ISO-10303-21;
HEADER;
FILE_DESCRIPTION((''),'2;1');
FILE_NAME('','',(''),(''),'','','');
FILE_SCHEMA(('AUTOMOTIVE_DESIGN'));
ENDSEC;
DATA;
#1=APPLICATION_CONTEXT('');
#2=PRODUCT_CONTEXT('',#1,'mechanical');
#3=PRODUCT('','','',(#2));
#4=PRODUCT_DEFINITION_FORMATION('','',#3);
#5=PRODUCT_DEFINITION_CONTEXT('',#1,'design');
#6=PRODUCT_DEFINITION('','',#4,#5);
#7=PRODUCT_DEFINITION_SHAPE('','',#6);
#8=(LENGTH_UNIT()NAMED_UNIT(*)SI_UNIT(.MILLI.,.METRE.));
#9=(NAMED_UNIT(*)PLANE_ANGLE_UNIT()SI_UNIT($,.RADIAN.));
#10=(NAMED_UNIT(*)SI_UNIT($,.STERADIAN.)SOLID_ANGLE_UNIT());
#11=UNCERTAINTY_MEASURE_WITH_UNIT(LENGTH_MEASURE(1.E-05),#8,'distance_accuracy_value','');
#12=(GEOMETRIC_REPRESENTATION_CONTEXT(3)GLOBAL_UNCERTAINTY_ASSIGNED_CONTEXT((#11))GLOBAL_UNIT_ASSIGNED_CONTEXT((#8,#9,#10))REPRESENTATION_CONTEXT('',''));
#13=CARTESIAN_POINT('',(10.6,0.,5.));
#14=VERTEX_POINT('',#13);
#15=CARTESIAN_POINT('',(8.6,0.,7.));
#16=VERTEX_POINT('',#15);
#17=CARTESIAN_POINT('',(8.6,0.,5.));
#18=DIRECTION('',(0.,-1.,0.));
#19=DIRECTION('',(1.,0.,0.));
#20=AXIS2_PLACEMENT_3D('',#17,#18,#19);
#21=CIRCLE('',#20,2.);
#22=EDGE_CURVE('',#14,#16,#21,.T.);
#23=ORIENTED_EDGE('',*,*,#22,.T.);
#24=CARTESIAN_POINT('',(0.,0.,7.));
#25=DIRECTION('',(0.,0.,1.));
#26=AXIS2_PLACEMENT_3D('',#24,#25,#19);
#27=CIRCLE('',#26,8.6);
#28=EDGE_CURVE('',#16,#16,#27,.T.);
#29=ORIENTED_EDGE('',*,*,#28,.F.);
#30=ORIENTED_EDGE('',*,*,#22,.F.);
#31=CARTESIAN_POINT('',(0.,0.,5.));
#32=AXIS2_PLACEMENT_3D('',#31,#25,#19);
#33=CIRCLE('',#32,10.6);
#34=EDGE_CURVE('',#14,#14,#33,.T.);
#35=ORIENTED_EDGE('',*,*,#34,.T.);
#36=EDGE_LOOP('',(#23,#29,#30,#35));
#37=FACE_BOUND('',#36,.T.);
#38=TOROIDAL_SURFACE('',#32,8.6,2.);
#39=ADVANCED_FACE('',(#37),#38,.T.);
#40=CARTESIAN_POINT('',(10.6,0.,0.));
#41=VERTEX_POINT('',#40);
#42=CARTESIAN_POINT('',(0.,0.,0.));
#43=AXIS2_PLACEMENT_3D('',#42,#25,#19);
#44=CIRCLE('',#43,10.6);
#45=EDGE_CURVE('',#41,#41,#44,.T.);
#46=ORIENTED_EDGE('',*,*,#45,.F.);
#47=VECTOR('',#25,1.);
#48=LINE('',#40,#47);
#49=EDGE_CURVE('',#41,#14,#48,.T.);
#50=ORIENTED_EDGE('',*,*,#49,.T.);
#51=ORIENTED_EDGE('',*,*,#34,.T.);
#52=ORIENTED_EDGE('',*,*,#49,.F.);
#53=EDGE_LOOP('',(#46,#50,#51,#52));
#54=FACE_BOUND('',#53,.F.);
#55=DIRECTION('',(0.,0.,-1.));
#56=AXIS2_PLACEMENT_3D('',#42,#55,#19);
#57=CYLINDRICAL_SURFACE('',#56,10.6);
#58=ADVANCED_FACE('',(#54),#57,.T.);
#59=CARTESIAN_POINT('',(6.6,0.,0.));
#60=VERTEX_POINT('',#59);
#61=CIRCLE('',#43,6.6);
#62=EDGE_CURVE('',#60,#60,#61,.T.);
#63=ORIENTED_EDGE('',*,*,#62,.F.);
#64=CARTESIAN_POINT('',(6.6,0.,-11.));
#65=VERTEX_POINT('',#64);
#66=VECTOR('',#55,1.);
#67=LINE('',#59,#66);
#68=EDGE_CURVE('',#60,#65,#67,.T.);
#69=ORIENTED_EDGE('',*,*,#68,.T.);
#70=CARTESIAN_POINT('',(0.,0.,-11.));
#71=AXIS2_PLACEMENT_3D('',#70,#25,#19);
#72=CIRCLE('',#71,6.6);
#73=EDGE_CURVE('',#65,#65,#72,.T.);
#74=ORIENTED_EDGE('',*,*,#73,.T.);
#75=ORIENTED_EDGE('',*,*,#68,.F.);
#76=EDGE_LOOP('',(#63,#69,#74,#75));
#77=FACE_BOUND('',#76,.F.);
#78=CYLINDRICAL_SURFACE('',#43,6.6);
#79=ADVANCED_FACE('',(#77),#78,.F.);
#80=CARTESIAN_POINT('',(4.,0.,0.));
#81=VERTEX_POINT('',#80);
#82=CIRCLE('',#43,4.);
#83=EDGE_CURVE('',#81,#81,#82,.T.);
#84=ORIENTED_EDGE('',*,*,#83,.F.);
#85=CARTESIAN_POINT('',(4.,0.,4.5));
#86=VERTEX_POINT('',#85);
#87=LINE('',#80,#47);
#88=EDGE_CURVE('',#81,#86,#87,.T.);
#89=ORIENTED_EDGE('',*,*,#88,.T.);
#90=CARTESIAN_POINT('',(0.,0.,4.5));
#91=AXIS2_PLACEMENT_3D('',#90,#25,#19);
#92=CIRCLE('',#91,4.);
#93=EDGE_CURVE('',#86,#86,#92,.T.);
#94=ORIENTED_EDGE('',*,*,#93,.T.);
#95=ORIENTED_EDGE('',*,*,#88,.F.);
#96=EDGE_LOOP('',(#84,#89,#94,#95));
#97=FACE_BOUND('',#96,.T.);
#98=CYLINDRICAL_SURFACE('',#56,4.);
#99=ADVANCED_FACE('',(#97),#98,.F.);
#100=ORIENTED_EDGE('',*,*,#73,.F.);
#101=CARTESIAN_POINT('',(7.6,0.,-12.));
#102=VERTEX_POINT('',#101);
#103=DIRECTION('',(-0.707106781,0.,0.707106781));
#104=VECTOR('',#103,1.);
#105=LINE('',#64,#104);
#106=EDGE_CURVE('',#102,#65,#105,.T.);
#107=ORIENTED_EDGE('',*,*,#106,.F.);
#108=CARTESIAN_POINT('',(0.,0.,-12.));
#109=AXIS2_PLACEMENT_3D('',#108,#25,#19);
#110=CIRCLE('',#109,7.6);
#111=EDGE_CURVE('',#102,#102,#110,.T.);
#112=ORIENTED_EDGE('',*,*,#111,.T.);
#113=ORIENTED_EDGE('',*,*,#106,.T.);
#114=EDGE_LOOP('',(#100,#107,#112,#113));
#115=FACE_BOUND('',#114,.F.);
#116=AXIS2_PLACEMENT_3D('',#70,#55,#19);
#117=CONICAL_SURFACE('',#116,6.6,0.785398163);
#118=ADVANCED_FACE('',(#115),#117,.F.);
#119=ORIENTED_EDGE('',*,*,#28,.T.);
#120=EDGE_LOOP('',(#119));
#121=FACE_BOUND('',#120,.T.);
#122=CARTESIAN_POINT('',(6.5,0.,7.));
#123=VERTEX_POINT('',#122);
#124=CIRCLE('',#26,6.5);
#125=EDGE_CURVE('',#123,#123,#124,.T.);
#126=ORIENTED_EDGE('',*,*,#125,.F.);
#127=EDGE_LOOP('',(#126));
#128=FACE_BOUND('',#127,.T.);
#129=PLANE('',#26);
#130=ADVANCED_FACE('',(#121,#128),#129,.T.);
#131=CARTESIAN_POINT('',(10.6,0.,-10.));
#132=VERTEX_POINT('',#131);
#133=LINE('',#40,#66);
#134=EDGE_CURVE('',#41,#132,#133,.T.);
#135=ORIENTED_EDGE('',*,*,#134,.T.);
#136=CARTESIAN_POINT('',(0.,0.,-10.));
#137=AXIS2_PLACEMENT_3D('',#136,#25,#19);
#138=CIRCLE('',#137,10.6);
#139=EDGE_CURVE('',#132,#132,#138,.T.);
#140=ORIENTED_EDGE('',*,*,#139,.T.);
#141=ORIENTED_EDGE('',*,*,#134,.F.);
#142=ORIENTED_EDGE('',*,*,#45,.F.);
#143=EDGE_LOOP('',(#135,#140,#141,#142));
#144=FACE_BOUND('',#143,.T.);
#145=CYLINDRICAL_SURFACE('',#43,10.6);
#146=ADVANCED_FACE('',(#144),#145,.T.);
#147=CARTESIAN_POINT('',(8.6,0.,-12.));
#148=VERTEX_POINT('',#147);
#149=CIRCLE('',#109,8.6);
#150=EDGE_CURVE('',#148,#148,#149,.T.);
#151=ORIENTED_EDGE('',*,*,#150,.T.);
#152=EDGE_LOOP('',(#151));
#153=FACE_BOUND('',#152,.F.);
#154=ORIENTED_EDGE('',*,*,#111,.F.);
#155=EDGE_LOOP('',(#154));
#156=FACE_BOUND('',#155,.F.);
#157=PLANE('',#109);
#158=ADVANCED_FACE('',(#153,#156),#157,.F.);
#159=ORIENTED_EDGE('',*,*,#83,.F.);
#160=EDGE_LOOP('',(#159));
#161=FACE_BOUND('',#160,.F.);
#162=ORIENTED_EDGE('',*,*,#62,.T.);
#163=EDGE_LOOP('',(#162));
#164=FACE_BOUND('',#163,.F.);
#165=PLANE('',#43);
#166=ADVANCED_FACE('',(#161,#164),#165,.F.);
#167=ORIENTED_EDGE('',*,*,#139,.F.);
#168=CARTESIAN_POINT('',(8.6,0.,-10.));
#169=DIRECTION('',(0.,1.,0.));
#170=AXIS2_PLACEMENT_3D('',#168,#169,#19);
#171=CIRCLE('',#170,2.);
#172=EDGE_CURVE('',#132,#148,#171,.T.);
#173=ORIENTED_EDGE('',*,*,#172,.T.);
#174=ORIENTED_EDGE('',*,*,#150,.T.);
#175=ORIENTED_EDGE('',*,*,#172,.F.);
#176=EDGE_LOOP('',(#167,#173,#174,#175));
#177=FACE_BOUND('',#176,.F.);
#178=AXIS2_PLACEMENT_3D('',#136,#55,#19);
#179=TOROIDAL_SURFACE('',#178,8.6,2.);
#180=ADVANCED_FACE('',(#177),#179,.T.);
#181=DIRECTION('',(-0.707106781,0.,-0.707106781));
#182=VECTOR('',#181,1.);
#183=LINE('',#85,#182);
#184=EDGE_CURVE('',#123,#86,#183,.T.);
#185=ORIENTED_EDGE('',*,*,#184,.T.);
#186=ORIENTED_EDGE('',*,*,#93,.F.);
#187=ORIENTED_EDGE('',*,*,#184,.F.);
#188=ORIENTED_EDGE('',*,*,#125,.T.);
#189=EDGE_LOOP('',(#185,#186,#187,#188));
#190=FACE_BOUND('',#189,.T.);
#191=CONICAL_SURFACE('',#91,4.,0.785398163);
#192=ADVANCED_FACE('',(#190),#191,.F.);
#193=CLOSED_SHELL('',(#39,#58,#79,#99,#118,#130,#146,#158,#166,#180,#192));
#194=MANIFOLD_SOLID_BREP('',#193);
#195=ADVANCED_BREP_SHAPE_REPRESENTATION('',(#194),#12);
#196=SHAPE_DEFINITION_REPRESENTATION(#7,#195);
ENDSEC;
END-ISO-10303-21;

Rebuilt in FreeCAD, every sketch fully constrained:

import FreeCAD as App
import Part
import Sketcher


def edges_at(feature, points):
    """Names of the edges that pass closest to the given points."""
    edges = feature.Shape.Edges
    near = lambda p: min(range(len(edges)), key=lambda i: edges[i].distToShape(Part.Vertex(*p))[0])
    return sorted({f"Edge{near(p) + 1}" for p in points})

doc = App.newDocument("Part")
params = doc.addObject("Spreadsheet::Sheet", "Params")
for row, (alias, value) in enumerate([
    ("sketch1_diameter", "13.2 mm"),
    ("sketch1_diameter2", "21.2 mm"),
    ("pad1_length", "7 mm"),
    ("pad1_length2", "12 mm"),
    ("fillet_radius", "2 mm"),
    ("chamfer_size", "1 mm"),
    ("sketch2_diameter", "15 mm"),
    ("sketch2_diameter2", "8 mm"),
    ("pad2_length", "7 mm"),
    ("chamfer2_size", "2.5 mm"),
], start=1):
    params.set(f"A{row}", alias)
    params.set(f"B{row}", "=" + value)
    params.setAlias(f"B{row}", alias)

body = doc.addObject("PartDesign::Body", "Body")

# Sketch on XY plane
sketch1 = doc.addObject("Sketcher::SketchObject", "Sketch")
body.addObject(sketch1)
sketch1.AttachmentSupport = (doc.XY_Plane, [""])
sketch1.MapMode = "FlatFace"
sketch1.addGeometry(Part.Circle(App.Vector(0, 0, 0), App.Vector(0, 0, 1), 11), False)
sketch1.addGeometry(Part.Circle(App.Vector(0, 0, 0), App.Vector(0, 0, 1), 7), False)
sketch1.addConstraint(Sketcher.Constraint("Coincident", 0, 3, -1, 1))
sketch1.addConstraint(Sketcher.Constraint("Coincident", 1, 3, -1, 1))
sketch1.addConstraint(Sketcher.Constraint("Diameter", 1, 13.2))
sketch1.addConstraint(Sketcher.Constraint("Diameter", 0, 21.2))
sketch1.setExpression("Constraints[2]", "Params.sketch1_diameter")
sketch1.setExpression("Constraints[3]", "Params.sketch1_diameter2")
pad1 = doc.addObject("PartDesign::Pad", "Pad")
body.addObject(pad1)
pad1.Profile = sketch1
pad1.Type = "TwoLengths"
pad1.setExpression("Length", "Params.pad1_length")
pad1.setExpression("Length2", "Params.pad1_length2")
doc.recompute()

fillet = doc.addObject("PartDesign::Fillet", "Fillet")
body.addObject(fillet)
fillet.Base = (pad1, edges_at(pad1, [(-10.6, 0, 7), (-10.6, 0, -12)]))
fillet.setExpression("Radius", "Params.fillet_radius")
doc.recompute()

chamfer = doc.addObject("PartDesign::Chamfer", "Chamfer")
body.addObject(chamfer)
chamfer.Base = (fillet, edges_at(fillet, [(-6.6, 0, -12)]))
chamfer.setExpression("Size", "Params.chamfer_size")

# Sketch on XY plane
sketch2 = doc.addObject("Sketcher::SketchObject", "Sketch001")
body.addObject(sketch2)
sketch2.AttachmentSupport = (doc.XY_Plane, [""])
sketch2.MapMode = "FlatFace"
sketch2.addGeometry(Part.Circle(App.Vector(0, 0, 0), App.Vector(0, 0, 1), 7.5), False)
sketch2.addGeometry(Part.Circle(App.Vector(0, 0, 0), App.Vector(0, 0, 1), 4), False)
sketch2.addConstraint(Sketcher.Constraint("Coincident", 0, 3, -1, 1))
sketch2.addConstraint(Sketcher.Constraint("Coincident", 1, 3, -1, 1))
sketch2.addConstraint(Sketcher.Constraint("Diameter", 0, 15.0))
sketch2.addConstraint(Sketcher.Constraint("Diameter", 1, 8.0))
sketch2.setExpression("Constraints[2]", "Params.sketch2_diameter")
sketch2.setExpression("Constraints[3]", "Params.sketch2_diameter2")
pad2 = doc.addObject("PartDesign::Pad", "Pad001")
body.addObject(pad2)
pad2.Profile = sketch2
pad2.setExpression("Length", "Params.pad2_length")
doc.recompute()

chamfer2 = doc.addObject("PartDesign::Chamfer", "Chamfer001")
body.addObject(chamfer2)
chamfer2.Base = (pad2, edges_at(pad2, [(-4, 0, 7)]))
chamfer2.setExpression("Size", "Params.chamfer2_size")

doc.recompute()
